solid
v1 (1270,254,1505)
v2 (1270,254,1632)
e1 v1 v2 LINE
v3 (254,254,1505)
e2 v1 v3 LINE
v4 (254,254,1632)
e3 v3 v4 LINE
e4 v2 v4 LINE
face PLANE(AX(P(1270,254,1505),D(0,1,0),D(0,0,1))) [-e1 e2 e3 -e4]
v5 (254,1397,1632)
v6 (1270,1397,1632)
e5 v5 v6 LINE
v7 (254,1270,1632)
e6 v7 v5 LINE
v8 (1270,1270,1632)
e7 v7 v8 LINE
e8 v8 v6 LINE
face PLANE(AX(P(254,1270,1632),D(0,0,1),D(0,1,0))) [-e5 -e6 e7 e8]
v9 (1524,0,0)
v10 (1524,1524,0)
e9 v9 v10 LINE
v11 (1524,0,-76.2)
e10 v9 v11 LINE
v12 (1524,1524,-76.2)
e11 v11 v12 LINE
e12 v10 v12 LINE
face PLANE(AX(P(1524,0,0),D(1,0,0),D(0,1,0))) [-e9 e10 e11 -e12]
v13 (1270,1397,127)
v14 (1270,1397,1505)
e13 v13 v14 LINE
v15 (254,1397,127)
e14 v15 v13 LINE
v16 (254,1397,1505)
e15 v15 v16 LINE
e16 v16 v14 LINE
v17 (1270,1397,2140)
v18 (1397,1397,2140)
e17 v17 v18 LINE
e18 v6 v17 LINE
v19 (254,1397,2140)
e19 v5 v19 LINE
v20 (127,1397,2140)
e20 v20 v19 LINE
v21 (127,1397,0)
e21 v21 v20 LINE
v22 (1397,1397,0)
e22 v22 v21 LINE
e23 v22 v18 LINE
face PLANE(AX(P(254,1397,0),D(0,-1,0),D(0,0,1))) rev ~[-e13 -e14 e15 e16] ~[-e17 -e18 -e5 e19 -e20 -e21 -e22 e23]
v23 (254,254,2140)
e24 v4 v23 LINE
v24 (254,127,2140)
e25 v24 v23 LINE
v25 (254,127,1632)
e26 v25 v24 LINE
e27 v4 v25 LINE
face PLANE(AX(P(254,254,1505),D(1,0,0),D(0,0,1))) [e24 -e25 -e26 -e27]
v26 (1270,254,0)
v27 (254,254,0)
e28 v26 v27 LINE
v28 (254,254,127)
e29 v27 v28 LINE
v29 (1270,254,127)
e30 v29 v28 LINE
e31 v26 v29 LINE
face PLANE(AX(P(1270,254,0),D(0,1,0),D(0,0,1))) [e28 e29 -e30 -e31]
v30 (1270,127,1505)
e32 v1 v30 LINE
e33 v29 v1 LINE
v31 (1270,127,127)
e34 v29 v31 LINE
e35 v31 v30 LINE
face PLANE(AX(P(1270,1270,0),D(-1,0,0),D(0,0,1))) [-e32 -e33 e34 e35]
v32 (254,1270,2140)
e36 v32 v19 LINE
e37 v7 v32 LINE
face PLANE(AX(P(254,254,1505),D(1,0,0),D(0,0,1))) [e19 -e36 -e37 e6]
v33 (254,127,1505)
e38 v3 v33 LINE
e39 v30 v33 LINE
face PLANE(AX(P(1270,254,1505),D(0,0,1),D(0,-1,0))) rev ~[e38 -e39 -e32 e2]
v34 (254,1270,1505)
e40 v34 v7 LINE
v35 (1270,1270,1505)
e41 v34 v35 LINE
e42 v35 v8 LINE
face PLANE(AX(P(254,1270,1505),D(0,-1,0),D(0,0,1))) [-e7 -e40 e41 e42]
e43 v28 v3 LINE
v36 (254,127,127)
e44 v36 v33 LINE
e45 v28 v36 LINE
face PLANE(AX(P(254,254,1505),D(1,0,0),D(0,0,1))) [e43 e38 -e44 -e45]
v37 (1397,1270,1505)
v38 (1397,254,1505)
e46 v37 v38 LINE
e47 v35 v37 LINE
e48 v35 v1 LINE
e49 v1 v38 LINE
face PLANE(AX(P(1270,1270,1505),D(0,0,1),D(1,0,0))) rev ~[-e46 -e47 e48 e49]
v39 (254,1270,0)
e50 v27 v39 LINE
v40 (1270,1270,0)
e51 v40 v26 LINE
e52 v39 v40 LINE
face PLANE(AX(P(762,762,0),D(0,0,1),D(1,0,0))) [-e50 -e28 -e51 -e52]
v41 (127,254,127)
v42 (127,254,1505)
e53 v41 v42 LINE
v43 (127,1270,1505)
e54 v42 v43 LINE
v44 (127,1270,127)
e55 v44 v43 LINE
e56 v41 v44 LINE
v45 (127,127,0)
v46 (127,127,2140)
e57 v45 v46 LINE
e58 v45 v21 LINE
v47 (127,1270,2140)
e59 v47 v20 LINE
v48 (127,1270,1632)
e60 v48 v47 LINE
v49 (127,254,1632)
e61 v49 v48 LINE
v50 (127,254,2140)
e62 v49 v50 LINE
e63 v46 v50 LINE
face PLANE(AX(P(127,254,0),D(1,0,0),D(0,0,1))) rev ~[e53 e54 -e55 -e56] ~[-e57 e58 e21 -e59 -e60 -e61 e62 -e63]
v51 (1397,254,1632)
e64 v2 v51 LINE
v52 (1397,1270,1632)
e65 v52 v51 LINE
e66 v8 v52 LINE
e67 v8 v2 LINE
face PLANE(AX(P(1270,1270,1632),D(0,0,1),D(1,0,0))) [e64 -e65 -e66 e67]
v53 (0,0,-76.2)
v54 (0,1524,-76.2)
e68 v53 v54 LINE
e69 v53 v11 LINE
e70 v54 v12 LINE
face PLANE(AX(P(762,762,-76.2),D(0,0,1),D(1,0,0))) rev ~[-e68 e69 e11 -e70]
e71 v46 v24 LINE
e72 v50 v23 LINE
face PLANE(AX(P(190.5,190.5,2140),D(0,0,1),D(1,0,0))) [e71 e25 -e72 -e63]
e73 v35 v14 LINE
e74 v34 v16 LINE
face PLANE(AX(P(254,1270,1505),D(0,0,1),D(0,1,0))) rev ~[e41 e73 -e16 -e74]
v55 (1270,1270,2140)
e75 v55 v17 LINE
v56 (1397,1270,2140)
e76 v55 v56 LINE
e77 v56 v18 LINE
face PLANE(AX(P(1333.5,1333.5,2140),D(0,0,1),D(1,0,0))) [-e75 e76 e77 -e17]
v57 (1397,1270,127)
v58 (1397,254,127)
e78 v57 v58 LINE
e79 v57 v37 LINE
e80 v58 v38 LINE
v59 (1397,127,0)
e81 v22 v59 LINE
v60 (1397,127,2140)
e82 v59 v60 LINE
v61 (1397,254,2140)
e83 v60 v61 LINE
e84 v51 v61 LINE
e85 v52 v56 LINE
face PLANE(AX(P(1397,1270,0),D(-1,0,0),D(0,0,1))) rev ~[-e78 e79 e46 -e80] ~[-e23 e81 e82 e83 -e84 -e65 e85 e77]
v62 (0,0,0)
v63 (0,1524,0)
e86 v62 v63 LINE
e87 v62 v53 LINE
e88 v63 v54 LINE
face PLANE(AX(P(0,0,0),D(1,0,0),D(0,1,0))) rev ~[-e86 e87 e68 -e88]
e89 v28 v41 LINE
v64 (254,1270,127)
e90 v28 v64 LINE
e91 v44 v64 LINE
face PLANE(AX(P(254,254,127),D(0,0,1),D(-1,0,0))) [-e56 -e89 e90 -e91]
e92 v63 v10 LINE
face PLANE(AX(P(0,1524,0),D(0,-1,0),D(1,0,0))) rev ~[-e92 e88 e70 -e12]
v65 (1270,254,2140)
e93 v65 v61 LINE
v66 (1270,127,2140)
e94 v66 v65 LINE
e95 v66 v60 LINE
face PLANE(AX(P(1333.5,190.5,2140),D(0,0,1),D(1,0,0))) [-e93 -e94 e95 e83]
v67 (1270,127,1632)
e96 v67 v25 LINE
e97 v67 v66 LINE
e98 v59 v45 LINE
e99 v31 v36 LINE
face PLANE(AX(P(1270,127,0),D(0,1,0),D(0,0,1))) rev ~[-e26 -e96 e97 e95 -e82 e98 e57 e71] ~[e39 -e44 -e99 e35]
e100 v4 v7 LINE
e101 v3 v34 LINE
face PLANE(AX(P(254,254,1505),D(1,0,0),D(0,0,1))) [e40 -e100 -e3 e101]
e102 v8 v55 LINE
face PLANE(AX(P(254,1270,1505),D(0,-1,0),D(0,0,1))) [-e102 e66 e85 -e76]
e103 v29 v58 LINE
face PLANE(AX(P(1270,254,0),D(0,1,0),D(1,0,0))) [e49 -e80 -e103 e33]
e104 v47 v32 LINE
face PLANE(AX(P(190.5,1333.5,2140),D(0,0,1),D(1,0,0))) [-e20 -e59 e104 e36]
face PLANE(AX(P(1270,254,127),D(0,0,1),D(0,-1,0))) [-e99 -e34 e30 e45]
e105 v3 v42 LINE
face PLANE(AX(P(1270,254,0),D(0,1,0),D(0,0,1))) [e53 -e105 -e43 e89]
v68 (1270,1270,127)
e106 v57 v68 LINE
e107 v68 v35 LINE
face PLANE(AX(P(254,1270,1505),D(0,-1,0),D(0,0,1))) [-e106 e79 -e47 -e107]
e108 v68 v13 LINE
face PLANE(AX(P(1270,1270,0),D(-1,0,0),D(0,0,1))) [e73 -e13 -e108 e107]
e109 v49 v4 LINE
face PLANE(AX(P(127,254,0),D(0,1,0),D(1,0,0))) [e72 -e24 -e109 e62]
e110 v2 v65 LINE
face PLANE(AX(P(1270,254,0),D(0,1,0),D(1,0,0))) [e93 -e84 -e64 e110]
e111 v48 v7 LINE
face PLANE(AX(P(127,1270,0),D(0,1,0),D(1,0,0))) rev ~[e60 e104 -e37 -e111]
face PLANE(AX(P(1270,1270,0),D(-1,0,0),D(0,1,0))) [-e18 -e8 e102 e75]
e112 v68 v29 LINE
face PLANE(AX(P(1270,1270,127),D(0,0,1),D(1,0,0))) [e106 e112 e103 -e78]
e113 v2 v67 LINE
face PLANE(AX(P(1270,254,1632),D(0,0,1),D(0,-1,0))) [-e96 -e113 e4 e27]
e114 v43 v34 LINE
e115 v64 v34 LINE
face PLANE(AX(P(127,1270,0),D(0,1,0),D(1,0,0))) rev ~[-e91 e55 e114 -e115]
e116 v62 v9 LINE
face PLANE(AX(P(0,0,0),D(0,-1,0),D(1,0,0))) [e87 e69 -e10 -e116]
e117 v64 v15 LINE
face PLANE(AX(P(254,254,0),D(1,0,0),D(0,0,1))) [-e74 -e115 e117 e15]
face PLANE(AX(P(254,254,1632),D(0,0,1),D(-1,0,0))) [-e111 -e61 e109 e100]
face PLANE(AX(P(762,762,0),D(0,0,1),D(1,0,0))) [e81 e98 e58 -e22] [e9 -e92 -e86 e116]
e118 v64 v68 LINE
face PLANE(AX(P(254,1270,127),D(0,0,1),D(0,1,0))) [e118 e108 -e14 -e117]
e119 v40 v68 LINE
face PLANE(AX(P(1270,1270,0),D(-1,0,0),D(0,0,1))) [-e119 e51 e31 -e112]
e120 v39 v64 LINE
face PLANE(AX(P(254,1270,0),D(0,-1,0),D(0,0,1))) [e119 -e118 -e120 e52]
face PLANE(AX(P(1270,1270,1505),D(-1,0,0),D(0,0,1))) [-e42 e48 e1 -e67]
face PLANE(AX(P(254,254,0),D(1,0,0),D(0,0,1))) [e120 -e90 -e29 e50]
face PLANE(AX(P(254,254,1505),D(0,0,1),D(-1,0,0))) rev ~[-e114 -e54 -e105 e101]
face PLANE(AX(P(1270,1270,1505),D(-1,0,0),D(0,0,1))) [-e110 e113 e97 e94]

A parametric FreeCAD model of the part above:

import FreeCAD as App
import Part
import Sketcher

doc = App.newDocument("Part")
body = doc.addObject("PartDesign::Body", "Body")

# Sketch on XY plane
sketch1 = doc.addObject("Sketcher::SketchObject", "Sketch")
body.addObject(sketch1)
sketch1.AttachmentSupport = (doc.XY_Plane, [""])
sketch1.MapMode = "FlatFace"
sketch1.addGeometry([
    Part.LineSegment(App.Vector(127, 1397, 0), App.Vector(127, 1270, 0)),
    Part.LineSegment(App.Vector(127, 1270, 0), App.Vector(254, 1270, 0)),
    Part.LineSegment(App.Vector(254, 1270, 0), App.Vector(254, 1397, 0)),
    Part.LineSegment(App.Vector(254, 1397, 0), App.Vector(127, 1397, 0)),
], False)
sketch1.addConstraint([
    Sketcher.Constraint("Coincident", 0, 2, 1, 1),
    Sketcher.Constraint("Coincident", 1, 2, 2, 1),
    Sketcher.Constraint("Coincident", 2, 2, 3, 1),
    Sketcher.Constraint("Coincident", 3, 2, 0, 1),
    Sketcher.Constraint("Vertical", 0),
    Sketcher.Constraint("Horizontal", 1),
    Sketcher.Constraint("Vertical", 2),
    Sketcher.Constraint("Horizontal", 3),
    Sketcher.Constraint("Equal", 3, 0),
    Sketcher.Constraint("DistanceX", 1, 1, 1, 2, 127.0),
    Sketcher.Constraint("DistanceX", -1, 1, 0, 2, 127.0),
    Sketcher.Constraint("DistanceY", -1, 1, 0, 2, 1270.0),
])
pad1 = doc.addObject("PartDesign::Pad", "Pad")
body.addObject(pad1)
pad1.Profile = sketch1
pad1.Length = 2140
body2 = doc.addObject("PartDesign::Body", "Body001")

# Sketch on XY plane
sketch2 = doc.addObject("Sketcher::SketchObject", "Sketch001")
body2.addObject(sketch2)
sketch2.AttachmentSupport = (doc.getObject("XY_Plane001"), [""])
sketch2.MapMode = "FlatFace"
sketch2.addGeometry([
    Part.LineSegment(App.Vector(1270, 1397, 0), App.Vector(1270, 1270, 0)),
    Part.LineSegment(App.Vector(1270, 1270, 0), App.Vector(1397, 1270, 0)),
    Part.LineSegment(App.Vector(1397, 1270, 0), App.Vector(1397, 1397, 0)),
    Part.LineSegment(App.Vector(1397, 1397, 0), App.Vector(1270, 1397, 0)),
], False)
sketch2.addConstraint([
    Sketcher.Constraint("Coincident", 0, 2, 1, 1),
    Sketcher.Constraint("Coincident", 1, 2, 2, 1),
    Sketcher.Constraint("Coincident", 2, 2, 3, 1),
    Sketcher.Constraint("Coincident", 3, 2, 0, 1),
    Sketcher.Constraint("Vertical", 0),
    Sketcher.Constraint("Horizontal", 1),
    Sketcher.Constraint("Vertical", 2),
    Sketcher.Constraint("Horizontal", 3),
    Sketcher.Constraint("Equal", 3, 0),
    Sketcher.Constraint("DistanceX", 1, 1, 1, 2, 127.0),
    Sketcher.Constraint("DistanceX", -1, 1, 0, 2, 1270.0),
    Sketcher.Constraint("DistanceY", -1, 1, 0, 2, 1270.0),
])
pad2 = doc.addObject("PartDesign::Pad", "Pad001")
body2.addObject(pad2)
pad2.Profile = sketch2
pad2.Length = 2140
body3 = doc.addObject("PartDesign::Body", "Body002")

# Sketch on XY plane
sketch3 = doc.addObject("Sketcher::SketchObject", "Sketch002")
body3.addObject(sketch3)
sketch3.AttachmentSupport = (doc.getObject("XY_Plane002"), [""])
sketch3.MapMode = "FlatFace"
sketch3.addGeometry([
    Part.LineSegment(App.Vector(1270, 254, 0), App.Vector(1270, 127, 0)),
    Part.LineSegment(App.Vector(1270, 127, 0), App.Vector(1397, 127, 0)),
    Part.LineSegment(App.Vector(1397, 127, 0), App.Vector(1397, 254, 0)),
    Part.LineSegment(App.Vector(1397, 254, 0), App.Vector(1270, 254, 0)),
], False)
sketch3.addConstraint([
    Sketcher.Constraint("Coincident", 0, 2, 1, 1),
    Sketcher.Constraint("Coincident", 1, 2, 2, 1),
    Sketcher.Constraint("Coincident", 2, 2, 3, 1),
    Sketcher.Constraint("Coincident", 3, 2, 0, 1),
    Sketcher.Constraint("Vertical", 0),
    Sketcher.Constraint("Horizontal", 1),
    Sketcher.Constraint("Vertical", 2),
    Sketcher.Constraint("Horizontal", 3),
    Sketcher.Constraint("Equal", 3, 0),
    Sketcher.Constraint("DistanceX", 1, 1, 1, 2, 127.0),
    Sketcher.Constraint("DistanceX", -1, 1, 0, 2, 1270.0),
    Sketcher.Constraint("DistanceY", -1, 1, 0, 2, 127.0),
])
pad3 = doc.addObject("PartDesign::Pad", "Pad002")
body3.addObject(pad3)
pad3.Profile = sketch3
pad3.Length = 2140
body4 = doc.addObject("PartDesign::Body", "Body003")

# Sketch on XY plane
sketch4 = doc.addObject("Sketcher::SketchObject", "Sketch003")
body4.addObject(sketch4)
sketch4.AttachmentSupport = (doc.getObject("XY_Plane003"), [""])
sketch4.MapMode = "FlatFace"
sketch4.addGeometry([
    Part.LineSegment(App.Vector(127, 254, 0), App.Vector(127, 127, 0)),
    Part.LineSegment(App.Vector(127, 127, 0), App.Vector(254, 127, 0)),
    Part.LineSegment(App.Vector(254, 127, 0), App.Vector(254, 254, 0)),
    Part.LineSegment(App.Vector(254, 254, 0), App.Vector(127, 254, 0)),
], False)
sketch4.addConstraint([
    Sketcher.Constraint("Coincident", 0, 2, 1, 1),
    Sketcher.Constraint("Coincident", 1, 2, 2, 1),
    Sketcher.Constraint("Coincident", 2, 2, 3, 1),
    Sketcher.Constraint("Coincident", 3, 2, 0, 1),
    Sketcher.Constraint("Vertical", 0),
    Sketcher.Constraint("Horizontal", 1),
    Sketcher.Constraint("Vertical", 2),
    Sketcher.Constraint("Horizontal", 3),
    Sketcher.Constraint("Equal", 3, 0),
    Sketcher.Constraint("DistanceX", 1, 1, 1, 2, 127.0),
    Sketcher.Constraint("DistanceX", -1, 1, 0, 2, 127.0),
    Sketcher.Constraint("DistanceY", -1, 1, 0, 2, 127.0),
])
pad4 = doc.addObject("PartDesign::Pad", "Pad003")
body4.addObject(pad4)
pad4.Profile = sketch4
pad4.Length = 2140
body.AllowCompound = True
doc.recompute()

boolean = doc.addObject("PartDesign::Boolean", "Boolean")
body.addObject(boolean)
boolean.Type = "Fuse"
boolean.addObjects([body2])
doc.recompute()

boolean2 = doc.addObject("PartDesign::Boolean", "Boolean001")
body.addObject(boolean2)
boolean2.Type = "Fuse"
boolean2.addObjects([body3])
doc.recompute()

boolean3 = doc.addObject("PartDesign::Boolean", "Boolean002")
body.addObject(boolean3)
boolean3.Type = "Fuse"
boolean3.addObjects([body4])

# Sketch on XY plane
sketch5 = doc.addObject("Sketcher::SketchObject", "Sketch004")
body.addObject(sketch5)
sketch5.AttachmentSupport = (doc.XY_Plane, [""])
sketch5.MapMode = "FlatFace"
sketch5.addGeometry([
    Part.LineSegment(App.Vector(0, 1524, 0), App.Vector(0, 0, 0)),
    Part.LineSegment(App.Vector(0, 0, 0), App.Vector(1524, 0, 0)),
    Part.LineSegment(App.Vector(1524, 0, 0), App.Vector(1524, 1524, 0)),
    Part.LineSegment(App.Vector(1524, 1524, 0), App.Vector(0, 1524, 0)),
], False)
sketch5.addConstraint([
    Sketcher.Constraint("Coincident", 0, 2, 1, 1),
    Sketcher.Constraint("Coincident", 1, 2, 2, 1),
    Sketcher.Constraint("Coincident", 2, 2, 3, 1),
    Sketcher.Constraint("Coincident", 3, 2, 0, 1),
    Sketcher.Constraint("Vertical", 0),
    Sketcher.Constraint("Horizontal", 1),
    Sketcher.Constraint("Vertical", 2),
    Sketcher.Constraint("Horizontal", 3),
    Sketcher.Constraint("Coincident", 0, 2, -1, 1),
    Sketcher.Constraint("Equal", 3, 0),
    Sketcher.Constraint("DistanceX", 1, 1, 1, 2, 1524.0),
])
pad5 = doc.addObject("PartDesign::Pad", "Pad004")
body.addObject(pad5)
pad5.Profile = sketch5
pad5.Length = 76.2
pad5.Reversed = True

# Sketch on XZ plane
sketch6 = doc.addObject("Sketcher::SketchObject", "Sketch005")
body.addObject(sketch6)
sketch6.AttachmentSupport = (doc.XZ_Plane, [""])
sketch6.MapMode = "FlatFace"
sketch6.AttachmentOffset = App.Placement(App.Vector(0, 0, -254), App.Rotation())
sketch6.addGeometry([
    Part.LineSegment(App.Vector(254, 1632, 0), App.Vector(254, 1505, 0)),
    Part.LineSegment(App.Vector(254, 1505, 0), App.Vector(127, 1505, 0)),
    Part.LineSegment(App.Vector(127, 1505, 0), App.Vector(127, 1632, 0)),
    Part.LineSegment(App.Vector(127, 1632, 0), App.Vector(254, 1632, 0)),
], False)
sketch6.addConstraint([
    Sketcher.Constraint("Coincident", 0, 2, 1, 1),
    Sketcher.Constraint("Coincident", 1, 2, 2, 1),
    Sketcher.Constraint("Coincident", 2, 2, 3, 1),
    Sketcher.Constraint("Coincident", 3, 2, 0, 1),
    Sketcher.Constraint("Vertical", 0),
    Sketcher.Constraint("Horizontal", 1),
    Sketcher.Constraint("Vertical", 2),
    Sketcher.Constraint("Horizontal", 3),
    Sketcher.Constraint("Equal", 3, 0),
    Sketcher.Constraint("DistanceX", 1, 2, 1, 1, 127.0),
    Sketcher.Constraint("DistanceX", -1, 1, 0, 2, 254.0),
    Sketcher.Constraint("DistanceY", -1, 1, 0, 2, 1505.0),
])
pad6 = doc.addObject("PartDesign::Pad", "Pad005")
body.addObject(pad6)
pad6.Profile = sketch6
pad6.Length = 1080
pad6.Reversed = True

# Sketch on YZ plane
sketch7 = doc.addObject("Sketcher::SketchObject", "Sketch006")
body.addObject(sketch7)
sketch7.AttachmentSupport = (doc.YZ_Plane, [""])
sketch7.MapMode = "FlatFace"
sketch7.AttachmentOffset = App.Placement(App.Vector(0, 0, 254), App.Rotation())
sketch7.addGeometry([
    Part.LineSegment(App.Vector(1270, 1632, 0), App.Vector(1270, 1505, 0)),
    Part.LineSegment(App.Vector(1270, 1505, 0), App.Vector(1397, 1505, 0)),
    Part.LineSegment(App.Vector(1397, 1505, 0), App.Vector(1397, 1632, 0)),
    Part.LineSegment(App.Vector(1397, 1632, 0), App.Vector(1270, 1632, 0)),
], False)
sketch7.addConstraint([
    Sketcher.Constraint("Coincident", 0, 2, 1, 1),
    Sketcher.Constraint("Coincident", 1, 2, 2, 1),
    Sketcher.Constraint("Coincident", 2, 2, 3, 1),
    Sketcher.Constraint("Coincident", 3, 2, 0, 1),
    Sketcher.Constraint("Vertical", 0),
    Sketcher.Constraint("Horizontal", 1),
    Sketcher.Constraint("Vertical", 2),
    Sketcher.Constraint("Horizontal", 3),
    Sketcher.Constraint("Equal", 3, 0),
    Sketcher.Constraint("DistanceX", 1, 1, 1, 2, 127.0),
    Sketcher.Constraint("DistanceX", -1, 1, 0, 2, 1270.0),
    Sketcher.Constraint("DistanceY", -1, 1, 0, 2, 1505.0),
])
pad7 = doc.addObject("PartDesign::Pad", "Pad006")
body.addObject(pad7)
pad7.Profile = sketch7
pad7.Length = 1080

# Sketch on XZ plane
sketch8 = doc.addObject("Sketcher::SketchObject", "Sketch007")
body.addObject(sketch8)
sketch8.AttachmentSupport = (doc.XZ_Plane, [""])
sketch8.MapMode = "FlatFace"
sketch8.AttachmentOffset = App.Placement(App.Vector(0, 0, -1270), App.Rotation())
sketch8.addGeometry([
    Part.LineSegment(App.Vector(1270, 1632, 0), App.Vector(1270, 1505, 0)),
    Part.LineSegment(App.Vector(1270, 1505, 0), App.Vector(1397, 1505, 0)),
    Part.LineSegment(App.Vector(1397, 1505, 0), App.Vector(1397, 1632, 0)),
    Part.LineSegment(App.Vector(1397, 1632, 0), App.Vector(1270, 1632, 0)),
], False)
sketch8.addConstraint([
    Sketcher.Constraint("Coincident", 0, 2, 1, 1),
    Sketcher.Constraint("Coincident", 1, 2, 2, 1),
    Sketcher.Constraint("Coincident", 2, 2, 3, 1),
    Sketcher.Constraint("Coincident", 3, 2, 0, 1),
    Sketcher.Constraint("Vertical", 0),
    Sketcher.Constraint("Horizontal", 1),
    Sketcher.Constraint("Vertical", 2),
    Sketcher.Constraint("Horizontal", 3),
    Sketcher.Constraint("Equal", 3, 0),
    Sketcher.Constraint("DistanceX", 1, 1, 1, 2, 127.0),
    Sketcher.Constraint("DistanceX", -1, 1, 0, 2, 1270.0),
    Sketcher.Constraint("DistanceY", -1, 1, 0, 2, 1505.0),
])
pad8 = doc.addObject("PartDesign::Pad", "Pad007")
body.addObject(pad8)
pad8.Profile = sketch8
pad8.Length = 1090

# Sketch on YZ plane
sketch9 = doc.addObject("Sketcher::SketchObject", "Sketch008")
body.addObject(sketch9)
sketch9.AttachmentSupport = (doc.YZ_Plane, [""])
sketch9.MapMode = "FlatFace"
sketch9.AttachmentOffset = App.Placement(App.Vector(0, 0, 1270), App.Rotation())
sketch9.addGeometry([
    Part.LineSegment(App.Vector(254, 1632, 0), App.Vector(254, 1505, 0)),
    Part.LineSegment(App.Vector(254, 1505, 0), App.Vector(127, 1505, 0)),
    Part.LineSegment(App.Vector(127, 1505, 0), App.Vector(127, 1632, 0)),
    Part.LineSegment(App.Vector(127, 1632, 0), App.Vector(254, 1632, 0)),
], False)
sketch9.addConstraint([
    Sketcher.Constraint("Coincident", 0, 2, 1, 1),
    Sketcher.Constraint("Coincident", 1, 2, 2, 1),
    Sketcher.Constraint("Coincident", 2, 2, 3, 1),
    Sketcher.Constraint("Coincident", 3, 2, 0, 1),
    Sketcher.Constraint("Vertical", 0),
    Sketcher.Constraint("Horizontal", 1),
    Sketcher.Constraint("Vertical", 2),
    Sketcher.Constraint("Horizontal", 3),
    Sketcher.Constraint("Equal", 3, 0),
    Sketcher.Constraint("DistanceX", 1, 2, 1, 1, 127.0),
    Sketcher.Constraint("DistanceX", -1, 1, 0, 2, 254.0),
    Sketcher.Constraint("DistanceY", -1, 1, 0, 2, 1505.0),
])
pad9 = doc.addObject("PartDesign::Pad", "Pad008")
body.addObject(pad9)
pad9.Profile = sketch9
pad9.Length = 1070
pad9.Reversed = True

# Sketch on XZ plane
sketch10 = doc.addObject("Sketcher::SketchObject", "Sketch009")
body.addObject(sketch10)
sketch10.AttachmentSupport = (doc.XZ_Plane, [""])
sketch10.MapMode = "FlatFace"
sketch10.AttachmentOffset = App.Placement(App.Vector(0, 0, -1270), App.Rotation())
sketch10.addGeometry([
    Part.LineSegment(App.Vector(1270, 127, 0), App.Vector(1270, 0, 0)),
    Part.LineSegment(App.Vector(1270, 0, 0), App.Vector(1397, 0, 0)),
    Part.LineSegment(App.Vector(1397, 0, 0), App.Vector(1397, 127, 0)),
    Part.LineSegment(App.Vector(1397, 127, 0), App.Vector(1270, 127, 0)),
], False)
sketch10.addConstraint([
    Sketcher.Constraint("Coincident", 0, 2, 1, 1),
    Sketcher.Constraint("Coincident", 1, 2, 2, 1),
    Sketcher.Constraint("Coincident", 2, 2, 3, 1),
    Sketcher.Constraint("Coincident", 3, 2, 0, 1),
    Sketcher.Constraint("Vertical", 0),
    Sketcher.Constraint("Horizontal", 1),
    Sketcher.Constraint("Vertical", 2),
    Sketcher.Constraint("Horizontal", 3),
    Sketcher.Constraint("PointOnObject", 0, 2, -1),
    Sketcher.Constraint("Equal", 3, 0),
    Sketcher.Constraint("DistanceX", 1, 1, 1, 2, 127.0),
    Sketcher.Constraint("DistanceX", -1, 1, 0, 2, 1270.0),
])
pad10 = doc.addObject("PartDesign::Pad", "Pad009")
body.addObject(pad10)
pad10.Profile = sketch10
pad10.Length = 1060

# Sketch on YZ plane
sketch11 = doc.addObject("Sketcher::SketchObject", "Sketch010")
body.addObject(sketch11)
sketch11.AttachmentSupport = (doc.YZ_Plane, [""])
sketch11.MapMode = "FlatFace"
sketch11.AttachmentOffset = App.Placement(App.Vector(0, 0, 1270), App.Rotation())
sketch11.addGeometry([
    Part.LineSegment(App.Vector(254, 127, 0), App.Vector(254, 0, 0)),
    Part.LineSegment(App.Vector(254, 0, 0), App.Vector(127, 0, 0)),
    Part.LineSegment(App.Vector(127, 0, 0), App.Vector(127, 127, 0)),
    Part.LineSegment(App.Vector(127, 127, 0), App.Vector(254, 127, 0)),
], False)
sketch11.addConstraint([
    Sketcher.Constraint("Coincident", 0, 2, 1, 1),
    Sketcher.Constraint("Coincident", 1, 2, 2, 1),
    Sketcher.Constraint("Coincident", 2, 2, 3, 1),
    Sketcher.Constraint("Coincident", 3, 2, 0, 1),
    Sketcher.Constraint("Vertical", 0),
    Sketcher.Constraint("Horizontal", 1),
    Sketcher.Constraint("Vertical", 2),
    Sketcher.Constraint("Horizontal", 3),
    Sketcher.Constraint("PointOnObject", 0, 2, -1),
    Sketcher.Constraint("Equal", 3, 0),
    Sketcher.Constraint("DistanceX", 1, 2, 1, 1, 127.0),
    Sketcher.Constraint("DistanceX", -1, 1, 0, 2, 254.0),
])
pad11 = doc.addObject("PartDesign::Pad", "Pad010")
body.addObject(pad11)
pad11.Profile = sketch11
pad11.Length = 1090
pad11.Reversed = True

# Sketch on XZ plane
sketch12 = doc.addObject("Sketcher::SketchObject", "Sketch011")
body.addObject(sketch12)
sketch12.AttachmentSupport = (doc.XZ_Plane, [""])
sketch12.MapMode = "FlatFace"
sketch12.AttachmentOffset = App.Placement(App.Vector(0, 0, -254), App.Rotation())
sketch12.addGeometry([
    Part.LineSegment(App.Vector(254, 127, 0), App.Vector(254, 0, 0)),
    Part.LineSegment(App.Vector(254, 0, 0), App.Vector(127, 0, 0)),
    Part.LineSegment(App.Vector(127, 0, 0), App.Vector(127, 127, 0)),
    Part.LineSegment(App.Vector(127, 127, 0), App.Vector(254, 127, 0)),
], False)
sketch12.addConstraint([
    Sketcher.Constraint("Coincident", 0, 2, 1, 1),
    Sketcher.Constraint("Coincident", 1, 2, 2, 1),
    Sketcher.Constraint("Coincident", 2, 2, 3, 1),
    Sketcher.Constraint("Coincident", 3, 2, 0, 1),
    Sketcher.Constraint("Vertical", 0),
    Sketcher.Constraint("Horizontal", 1),
    Sketcher.Constraint("Vertical", 2),
    Sketcher.Constraint("Horizontal", 3),
    Sketcher.Constraint("PointOnObject", 0, 2, -1),
    Sketcher.Constraint("Equal", 3, 0),
    Sketcher.Constraint("DistanceX", 1, 2, 1, 1, 127.0),
    Sketcher.Constraint("DistanceX", -1, 1, 0, 2, 254.0),
])
pad12 = doc.addObject("PartDesign::Pad", "Pad011")
body.addObject(pad12)
pad12.Profile = sketch12
pad12.Length = 1070
pad12.Reversed = True

# Sketch on YZ plane
sketch13 = doc.addObject("Sketcher::SketchObject", "Sketch012")
body.addObject(sketch13)
sketch13.AttachmentSupport = (doc.YZ_Plane, [""])
sketch13.MapMode = "FlatFace"
sketch13.AttachmentOffset = App.Placement(App.Vector(0, 0, 254), App.Rotation())
sketch13.addGeometry([
    Part.LineSegment(App.Vector(1270, 127, 0), App.Vector(1270, 0, 0)),
    Part.LineSegment(App.Vector(1270, 0, 0), App.Vector(1397, 0, 0)),
    Part.LineSegment(App.Vector(1397, 0, 0), App.Vector(1397, 127, 0)),
    Part.LineSegment(App.Vector(1397, 127, 0), App.Vector(1270, 127, 0)),
], False)
sketch13.addConstraint([
    Sketcher.Constraint("Coincident", 0, 2, 1, 1),
    Sketcher.Constraint("Coincident", 1, 2, 2, 1),
    Sketcher.Constraint("Coincident", 2, 2, 3, 1),
    Sketcher.Constraint("Coincident", 3, 2, 0, 1),
    Sketcher.Constraint("Vertical", 0),
    Sketcher.Constraint("Horizontal", 1),
    Sketcher.Constraint("Vertical", 2),
    Sketcher.Constraint("Horizontal", 3),
    Sketcher.Constraint("PointOnObject", 0, 2, -1),
    Sketcher.Constraint("Equal", 3, 0),
    Sketcher.Constraint("DistanceX", 1, 1, 1, 2, 127.0),
    Sketcher.Constraint("DistanceX", -1, 1, 0, 2, 1270.0),
])
pad13 = doc.addObject("PartDesign::Pad", "Pad012")
body.addObject(pad13)
pad13.Profile = sketch13
pad13.Length = 1100

doc.recompute()
